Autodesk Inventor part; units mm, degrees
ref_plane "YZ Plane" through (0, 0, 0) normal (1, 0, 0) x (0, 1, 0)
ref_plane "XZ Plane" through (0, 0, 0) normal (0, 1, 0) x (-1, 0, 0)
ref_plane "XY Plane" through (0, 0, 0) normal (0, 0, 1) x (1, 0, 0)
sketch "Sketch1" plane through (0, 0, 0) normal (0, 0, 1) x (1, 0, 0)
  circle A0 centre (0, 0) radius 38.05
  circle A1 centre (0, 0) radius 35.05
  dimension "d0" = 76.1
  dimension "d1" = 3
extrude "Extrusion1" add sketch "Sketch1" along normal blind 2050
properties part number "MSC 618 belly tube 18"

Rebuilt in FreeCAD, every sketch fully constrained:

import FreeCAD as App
import Part
import Sketcher

doc = App.newDocument("Part")
body = doc.addObject("PartDesign::Body", "Body")

# Sketch on XY plane
sketch1 = body.newObject("Sketcher::SketchObject", "Sketch")
sketch1.AttachmentSupport = (doc.getObject("XY_Plane"), [""])
sketch1.MapMode = "FlatFace"
sketch1.addGeometry([
    Part.Circle(App.Vector(0, 0, 0), App.Vector(0, 0, 1), 38),
    Part.Circle(App.Vector(0, 0, 0), App.Vector(0, 0, 1), 35),
], False)
sketch1.addConstraint([
    Sketcher.Constraint("Coincident", 0, 3, -1, 1),
    Sketcher.Constraint("Coincident", 1, 3, -1, 1),
    Sketcher.Constraint("Diameter", 0, 76.1),
    Sketcher.Constraint("Diameter", 1, 70.1),
])
pad1 = body.newObject("PartDesign::Pad", "Pad")
pad1.Profile = sketch1
pad1.Length = 2050

doc.recompute()
